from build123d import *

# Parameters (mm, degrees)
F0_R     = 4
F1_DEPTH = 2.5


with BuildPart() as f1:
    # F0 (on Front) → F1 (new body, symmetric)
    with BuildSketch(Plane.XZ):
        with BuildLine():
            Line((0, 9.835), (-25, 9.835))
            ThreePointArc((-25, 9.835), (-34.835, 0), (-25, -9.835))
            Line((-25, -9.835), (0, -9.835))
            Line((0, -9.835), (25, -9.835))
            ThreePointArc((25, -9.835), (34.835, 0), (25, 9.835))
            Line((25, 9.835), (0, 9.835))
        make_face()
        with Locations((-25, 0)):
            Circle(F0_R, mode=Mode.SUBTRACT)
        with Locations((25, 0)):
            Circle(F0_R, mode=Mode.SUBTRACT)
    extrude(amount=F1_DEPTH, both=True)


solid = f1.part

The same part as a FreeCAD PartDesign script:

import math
import FreeCAD as App
import Part
import Sketcher

V = App.Vector
Q = App.Units.Quantity

doc = App.newDocument("Part")
body = doc.addObject("PartDesign::Body", "Body")

sketch1 = body.newObject("Sketcher::SketchObject", "Sketch")
sketch1.AttachmentSupport = (doc.getObject("XZ_Plane"), [""])
sketch1.MapMode = "FlatFace"
sketch1.addGeometry([
    Part.ArcOfCircle(Part.Circle(V(-25, 0, 0), V(0, 0, 1), 9.835), math.radians(90), math.radians(270)),
    Part.LineSegment(V(-25, -9.835, 0), V(25, -9.835, 0)),
    Part.ArcOfCircle(Part.Circle(V(25, 0, 0), V(0, 0, 1), 9.835), math.radians(-90), math.radians(90)),
    Part.LineSegment(V(25, 9.835, 0), V(-25, 9.835, 0)),
    Part.Circle(V(-25, 0, 0), V(0, 0, 1), 4),
    Part.Circle(V(25, 0, 0), V(0, 0, 1), 4),
], False)
sketch1.addConstraint([
    Sketcher.Constraint("Tangent", 0, 2, 1, 1),
    Sketcher.Constraint("Tangent", 1, 2, 2, 1),
    Sketcher.Constraint("Tangent", 2, 2, 3, 1),
    Sketcher.Constraint("Tangent", 3, 2, 0, 1),
    Sketcher.Constraint("Horizontal", 1),
    Sketcher.Constraint("Horizontal", 3),
    Sketcher.Constraint("Coincident", 4, 3, 0, 3),
    Sketcher.Constraint("Coincident", 5, 3, 2, 3),
    Sketcher.Constraint("Equal", 4, 5),
    Sketcher.Constraint("Symmetric", 0, 3, 2, 3, -1, 1),
    Sketcher.Constraint("Diameter", 4, Q("8 mm")),
    Sketcher.Constraint("DistanceX", 1, 1, 1, 2, Q("50 mm")),
    Sketcher.Constraint("Radius", 0, Q("9.835 mm")),
])
pad1 = body.newObject("PartDesign::Pad", "Pad")
pad1.Profile = sketch1
pad1.Length = 5
pad1.Midplane = True

doc.recompute()
